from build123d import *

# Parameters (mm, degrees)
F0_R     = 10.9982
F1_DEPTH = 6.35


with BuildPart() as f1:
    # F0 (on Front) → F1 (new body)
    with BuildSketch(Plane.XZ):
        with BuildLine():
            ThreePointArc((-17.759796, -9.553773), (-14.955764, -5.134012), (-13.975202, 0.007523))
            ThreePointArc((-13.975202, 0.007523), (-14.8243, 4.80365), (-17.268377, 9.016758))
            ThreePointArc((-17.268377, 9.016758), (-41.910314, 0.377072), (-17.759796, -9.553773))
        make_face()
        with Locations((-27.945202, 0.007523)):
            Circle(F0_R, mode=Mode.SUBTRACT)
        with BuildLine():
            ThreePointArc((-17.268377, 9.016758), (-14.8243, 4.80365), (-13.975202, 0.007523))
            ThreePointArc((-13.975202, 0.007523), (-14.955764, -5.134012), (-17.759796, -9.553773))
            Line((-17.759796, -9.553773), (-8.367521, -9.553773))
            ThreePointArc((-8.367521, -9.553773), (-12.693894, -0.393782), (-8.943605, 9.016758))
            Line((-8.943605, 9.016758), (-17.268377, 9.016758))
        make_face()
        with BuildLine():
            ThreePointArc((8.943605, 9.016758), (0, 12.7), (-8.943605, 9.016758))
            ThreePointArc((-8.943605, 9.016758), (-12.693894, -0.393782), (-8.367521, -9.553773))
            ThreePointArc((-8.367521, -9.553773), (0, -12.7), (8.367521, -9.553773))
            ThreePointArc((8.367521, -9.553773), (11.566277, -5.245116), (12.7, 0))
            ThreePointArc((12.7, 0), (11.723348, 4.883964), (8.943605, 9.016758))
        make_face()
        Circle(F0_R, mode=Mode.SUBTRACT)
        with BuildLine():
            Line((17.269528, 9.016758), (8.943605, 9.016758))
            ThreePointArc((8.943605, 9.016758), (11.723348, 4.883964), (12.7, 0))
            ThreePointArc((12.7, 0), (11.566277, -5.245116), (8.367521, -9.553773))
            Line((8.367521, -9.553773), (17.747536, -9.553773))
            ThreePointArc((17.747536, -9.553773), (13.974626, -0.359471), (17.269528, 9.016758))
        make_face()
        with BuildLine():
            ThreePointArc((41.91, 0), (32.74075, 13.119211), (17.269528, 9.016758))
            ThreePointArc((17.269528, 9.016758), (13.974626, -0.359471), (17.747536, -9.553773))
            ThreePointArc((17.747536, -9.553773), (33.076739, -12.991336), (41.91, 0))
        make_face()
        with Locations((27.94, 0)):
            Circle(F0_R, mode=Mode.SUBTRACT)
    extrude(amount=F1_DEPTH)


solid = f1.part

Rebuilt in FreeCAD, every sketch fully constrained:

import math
import FreeCAD as App
import Part
import Sketcher
Q = App.Units.Quantity

doc = App.newDocument("Part")
body = doc.addObject("PartDesign::Body", "Body")

sketch1 = body.newObject("Sketcher::SketchObject", "Sketch")
sketch1.AttachmentSupport = (doc.getObject("XZ_Plane"), [""])
sketch1.MapMode = "FlatFace"
sketch1.addGeometry(Part.ArcOfCircle(Part.Circle(App.Vector(-27.945203, 0.007524, 0), App.Vector(0, 0, 1), 13.97), math.radians(40.158077), math.radians(316.810274)), False)
sketch1.addGeometry(Part.LineSegment(App.Vector(-17.759796, -9.553773, 0), App.Vector(-8.367521, -9.553773, 0)), False)
sketch1.addGeometry(Part.ArcOfCircle(Part.Circle(App.Vector(0, -0.000002, 0), App.Vector(0, 0, 1), 12.699998), math.radians(-131.21299), math.radians(-48.78701)), False)
sketch1.addGeometry(Part.LineSegment(App.Vector(8.367521, -9.553773, 0), App.Vector(17.747536, -9.553773, 0)), False)
sketch1.addGeometry(Part.ArcOfCircle(Part.Circle(App.Vector(27.94, 0, 0), App.Vector(0, 0, 1), 13.97), math.radians(-136.852583), math.radians(0)), False)
sketch1.addGeometry(Part.ArcOfCircle(Part.Circle(App.Vector(27.94, 0, 0), App.Vector(0, 0, 1), 13.97), math.radians(0), math.radians(139.801535)), False)
sketch1.addGeometry(Part.LineSegment(App.Vector(17.269528, 9.016758, 0), App.Vector(8.943605, 9.016758, 0)), False)
sketch1.addGeometry(Part.ArcOfCircle(Part.Circle(App.Vector(0, 0.000001, 0), App.Vector(0, 0, 1), 12.699999), math.radians(45.233364), math.radians(134.766636)), False)
sketch1.addGeometry(Part.LineSegment(App.Vector(-8.943605, 9.016758, 0), App.Vector(-17.268377, 9.016758, 0)), False)
sketch1.addGeometry(Part.Circle(App.Vector(0, 0, 0), App.Vector(0, 0, 1), 10.9982), False)
sketch1.addGeometry(Part.Circle(App.Vector(27.94, 0, 0), App.Vector(0, 0, 1), 10.9982), False)
sketch1.addGeometry(Part.Circle(App.Vector(-27.945202, 0.007523, 0), App.Vector(0, 0, 1), 10.9982), False)
sketch1.addConstraint(Sketcher.Constraint("Coincident", 0, 2, 1, 1))
sketch1.addConstraint(Sketcher.Constraint("Coincident", 1, 2, 2, 1))
sketch1.addConstraint(Sketcher.Constraint("Coincident", 2, 2, 3, 1))
sketch1.addConstraint(Sketcher.Constraint("Coincident", 3, 2, 4, 1))
sketch1.addConstraint(Sketcher.Constraint("Tangent", 4, 2, 5, 1))
sketch1.addConstraint(Sketcher.Constraint("Coincident", 5, 2, 6, 1))
sketch1.addConstraint(Sketcher.Constraint("Coincident", 6, 2, 7, 1))
sketch1.addConstraint(Sketcher.Constraint("Coincident", 7, 2, 8, 1))
sketch1.addConstraint(Sketcher.Constraint("Coincident", 8, 2, 0, 1))
sketch1.addConstraint(Sketcher.Constraint("Horizontal", 1))
sketch1.addConstraint(Sketcher.Constraint("Horizontal", 3))
sketch1.addConstraint(Sketcher.Constraint("Horizontal", 6))
sketch1.addConstraint(Sketcher.Constraint("Horizontal", 8))
sketch1.addConstraint(Sketcher.Constraint("Coincident", 2, 3, -1, 1))
sketch1.addConstraint(Sketcher.Constraint("Coincident", 7, 3, -1, 1))
sketch1.addConstraint(Sketcher.Constraint("Coincident", 9, 3, -1, 1))
sketch1.addConstraint(Sketcher.Constraint("Coincident", 10, 3, 4, 3))
sketch1.addConstraint(Sketcher.Constraint("Coincident", 11, 3, 0, 3))
sketch1.addConstraint(Sketcher.Constraint("Equal", 0, 4))
sketch1.addConstraint(Sketcher.Constraint("Equal", 4, 5))
sketch1.addConstraint(Sketcher.Constraint("Equal", 2, 7))
sketch1.addConstraint(Sketcher.Constraint("Equal", 9, 10))
sketch1.addConstraint(Sketcher.Constraint("Equal", 10, 11))
sketch1.addConstraint(Sketcher.Constraint("PointOnObject", 4, 3, -1))
sketch1.addConstraint(Sketcher.Constraint("PointOnObject", 4, 2, -1))
sketch1.addConstraint(Sketcher.Constraint("Horizontal", 1, 2, 2, 2))
sketch1.addConstraint(Sketcher.Constraint("Horizontal", 6, 2, 7, 2))
sketch1.addConstraint(Sketcher.Constraint("Radius", 2, Q("0.4999999 in")))
sketch1.addConstraint(Sketcher.Constraint("Radius", 0, Q("0.55 in")))
sketch1.addConstraint(Sketcher.Constraint("Diameter", 9, Q("0.866 in")))
sketch1.addConstraint(Sketcher.Constraint("DistanceX", -1, 1, 4, 3, Q("1.1 in")))
sketch1.addConstraint(Sketcher.Constraint("DistanceX", 11, 3, -1, 1, 27.945202))
sketch1.addConstraint(Sketcher.Constraint("DistanceX", 1, 1, 1, 2, 9.392275))
sketch1.addConstraint(Sketcher.Constraint("DistanceX", 3, 1, 3, 2, 9.380015))
sketch1.addConstraint(Sketcher.Constraint("DistanceX", 6, 2, 6, 1, 8.325923))
pad1 = body.newObject("PartDesign::Pad", "Pad")
pad1.Profile = sketch1
pad1.Length = Q("0.25 in")

doc.recompute()
